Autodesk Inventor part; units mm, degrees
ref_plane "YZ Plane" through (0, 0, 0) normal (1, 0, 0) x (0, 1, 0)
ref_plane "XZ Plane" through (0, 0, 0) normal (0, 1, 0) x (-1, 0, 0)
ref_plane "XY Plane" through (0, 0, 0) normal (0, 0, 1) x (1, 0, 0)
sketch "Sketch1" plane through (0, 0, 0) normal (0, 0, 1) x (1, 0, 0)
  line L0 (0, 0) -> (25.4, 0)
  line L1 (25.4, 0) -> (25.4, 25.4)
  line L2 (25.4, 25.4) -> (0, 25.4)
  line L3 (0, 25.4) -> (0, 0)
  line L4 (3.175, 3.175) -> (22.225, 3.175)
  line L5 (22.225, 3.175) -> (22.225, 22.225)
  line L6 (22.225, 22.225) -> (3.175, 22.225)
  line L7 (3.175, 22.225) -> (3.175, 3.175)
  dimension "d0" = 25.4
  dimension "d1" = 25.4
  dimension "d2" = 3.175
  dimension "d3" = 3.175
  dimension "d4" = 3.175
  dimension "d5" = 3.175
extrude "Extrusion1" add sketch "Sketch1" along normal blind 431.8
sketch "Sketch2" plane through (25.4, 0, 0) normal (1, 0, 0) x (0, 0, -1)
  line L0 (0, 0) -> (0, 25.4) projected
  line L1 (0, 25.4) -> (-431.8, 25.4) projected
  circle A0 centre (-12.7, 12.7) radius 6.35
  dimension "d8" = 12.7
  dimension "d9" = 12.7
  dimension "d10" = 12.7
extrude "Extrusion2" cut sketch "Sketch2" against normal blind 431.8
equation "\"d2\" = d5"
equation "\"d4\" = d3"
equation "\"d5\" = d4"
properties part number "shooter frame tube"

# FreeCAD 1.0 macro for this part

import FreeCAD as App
import Part
import Sketcher
from FreeCAD import Vector
Q = App.Units.Quantity

doc = App.newDocument("Part")
body = doc.addObject("PartDesign::Body", "Body")

# Sketch on XY plane
sketch1 = body.newObject("Sketcher::SketchObject", "Sketch")
sketch1.AttachmentSupport = (doc.getObject("XY_Plane"), [""])
sketch1.MapMode = "FlatFace"
sketch1.addGeometry([
    Part.LineSegment(Vector(0, 25, 0), Vector(0, 0, 0)),  # 0
    Part.LineSegment(Vector(0, 0, 0), Vector(25, 0, 0)),  # 1
    Part.LineSegment(Vector(25, 0, 0), Vector(25, 25, 0)),  # 2
    Part.LineSegment(Vector(25, 25, 0), Vector(0, 25, 0)),  # 3
    Part.LineSegment(Vector(22, 3, 0), Vector(3, 3, 0)),  # 4
    Part.LineSegment(Vector(3, 3, 0), Vector(3, 22, 0)),  # 5
    Part.LineSegment(Vector(3, 22, 0), Vector(22, 22, 0)),  # 6
    Part.LineSegment(Vector(22, 22, 0), Vector(22, 3, 0)),  # 7
], False)
sketch1.addConstraint([
    Sketcher.Constraint("Coincident", 0, 2, 1, 1),
    Sketcher.Constraint("Coincident", 1, 2, 2, 1),
    Sketcher.Constraint("Coincident", 2, 2, 3, 1),
    Sketcher.Constraint("Coincident", 3, 2, 0, 1),
    Sketcher.Constraint("Coincident", 4, 2, 5, 1),
    Sketcher.Constraint("Coincident", 5, 2, 6, 1),
    Sketcher.Constraint("Coincident", 6, 2, 7, 1),
    Sketcher.Constraint("Coincident", 7, 2, 4, 1),
    Sketcher.Constraint("Vertical", 0),
    Sketcher.Constraint("Horizontal", 1),
    Sketcher.Constraint("Vertical", 2),
    Sketcher.Constraint("Horizontal", 3),
    Sketcher.Constraint("Horizontal", 4),
    Sketcher.Constraint("Vertical", 5),
    Sketcher.Constraint("Horizontal", 6),
    Sketcher.Constraint("Vertical", 7),
    Sketcher.Constraint("Coincident", 0, 2, -1, 1),
    Sketcher.Constraint("Equal", 3, 0),
    Sketcher.Constraint("Equal", 6, 5),
    Sketcher.Constraint("DistanceX", 1, 1, 1, 2, Q("1 in")),
    Sketcher.Constraint("DistanceX", -1, 1, 4, 2, Q("0.125 in")),
    Sketcher.Constraint("DistanceY", -1, 1, 4, 2, Q("0.125 in")),
    Sketcher.Constraint("DistanceY", 5, 2, 3, 2, Q("0.125 in")),
])
pad1 = body.newObject("PartDesign::Pad", "Pad")
pad1.Profile = sketch1
pad1.Length = Q("17 in")

# Sketch on YZ plane
sketch2 = body.newObject("Sketcher::SketchObject", "Sketch001")
sketch2.AttachmentSupport = (doc.getObject("YZ_Plane"), [""])
sketch2.MapMode = "FlatFace"
sketch2.AttachmentOffset = App.Placement(Vector(0, 0, 1 * 25.4), App.Rotation())
sketch2.addGeometry(Part.Circle(Vector(13, 13, 0), Vector(0, 0, 1), 6), False)
sketch2.addConstraint([
    Sketcher.Constraint("Diameter", 0, Q("0.5 in")),
    Sketcher.Constraint("DistanceX", -1, 1, 0, 3, Q("0.5 in")),
    Sketcher.Constraint("DistanceY", -1, 1, 0, 3, Q("0.5 in")),
])
pocket1 = body.newObject("PartDesign::Pocket", "Pocket")
pocket1.Profile = sketch2
pocket1.Length = Q("17 in")

doc.recompute()
